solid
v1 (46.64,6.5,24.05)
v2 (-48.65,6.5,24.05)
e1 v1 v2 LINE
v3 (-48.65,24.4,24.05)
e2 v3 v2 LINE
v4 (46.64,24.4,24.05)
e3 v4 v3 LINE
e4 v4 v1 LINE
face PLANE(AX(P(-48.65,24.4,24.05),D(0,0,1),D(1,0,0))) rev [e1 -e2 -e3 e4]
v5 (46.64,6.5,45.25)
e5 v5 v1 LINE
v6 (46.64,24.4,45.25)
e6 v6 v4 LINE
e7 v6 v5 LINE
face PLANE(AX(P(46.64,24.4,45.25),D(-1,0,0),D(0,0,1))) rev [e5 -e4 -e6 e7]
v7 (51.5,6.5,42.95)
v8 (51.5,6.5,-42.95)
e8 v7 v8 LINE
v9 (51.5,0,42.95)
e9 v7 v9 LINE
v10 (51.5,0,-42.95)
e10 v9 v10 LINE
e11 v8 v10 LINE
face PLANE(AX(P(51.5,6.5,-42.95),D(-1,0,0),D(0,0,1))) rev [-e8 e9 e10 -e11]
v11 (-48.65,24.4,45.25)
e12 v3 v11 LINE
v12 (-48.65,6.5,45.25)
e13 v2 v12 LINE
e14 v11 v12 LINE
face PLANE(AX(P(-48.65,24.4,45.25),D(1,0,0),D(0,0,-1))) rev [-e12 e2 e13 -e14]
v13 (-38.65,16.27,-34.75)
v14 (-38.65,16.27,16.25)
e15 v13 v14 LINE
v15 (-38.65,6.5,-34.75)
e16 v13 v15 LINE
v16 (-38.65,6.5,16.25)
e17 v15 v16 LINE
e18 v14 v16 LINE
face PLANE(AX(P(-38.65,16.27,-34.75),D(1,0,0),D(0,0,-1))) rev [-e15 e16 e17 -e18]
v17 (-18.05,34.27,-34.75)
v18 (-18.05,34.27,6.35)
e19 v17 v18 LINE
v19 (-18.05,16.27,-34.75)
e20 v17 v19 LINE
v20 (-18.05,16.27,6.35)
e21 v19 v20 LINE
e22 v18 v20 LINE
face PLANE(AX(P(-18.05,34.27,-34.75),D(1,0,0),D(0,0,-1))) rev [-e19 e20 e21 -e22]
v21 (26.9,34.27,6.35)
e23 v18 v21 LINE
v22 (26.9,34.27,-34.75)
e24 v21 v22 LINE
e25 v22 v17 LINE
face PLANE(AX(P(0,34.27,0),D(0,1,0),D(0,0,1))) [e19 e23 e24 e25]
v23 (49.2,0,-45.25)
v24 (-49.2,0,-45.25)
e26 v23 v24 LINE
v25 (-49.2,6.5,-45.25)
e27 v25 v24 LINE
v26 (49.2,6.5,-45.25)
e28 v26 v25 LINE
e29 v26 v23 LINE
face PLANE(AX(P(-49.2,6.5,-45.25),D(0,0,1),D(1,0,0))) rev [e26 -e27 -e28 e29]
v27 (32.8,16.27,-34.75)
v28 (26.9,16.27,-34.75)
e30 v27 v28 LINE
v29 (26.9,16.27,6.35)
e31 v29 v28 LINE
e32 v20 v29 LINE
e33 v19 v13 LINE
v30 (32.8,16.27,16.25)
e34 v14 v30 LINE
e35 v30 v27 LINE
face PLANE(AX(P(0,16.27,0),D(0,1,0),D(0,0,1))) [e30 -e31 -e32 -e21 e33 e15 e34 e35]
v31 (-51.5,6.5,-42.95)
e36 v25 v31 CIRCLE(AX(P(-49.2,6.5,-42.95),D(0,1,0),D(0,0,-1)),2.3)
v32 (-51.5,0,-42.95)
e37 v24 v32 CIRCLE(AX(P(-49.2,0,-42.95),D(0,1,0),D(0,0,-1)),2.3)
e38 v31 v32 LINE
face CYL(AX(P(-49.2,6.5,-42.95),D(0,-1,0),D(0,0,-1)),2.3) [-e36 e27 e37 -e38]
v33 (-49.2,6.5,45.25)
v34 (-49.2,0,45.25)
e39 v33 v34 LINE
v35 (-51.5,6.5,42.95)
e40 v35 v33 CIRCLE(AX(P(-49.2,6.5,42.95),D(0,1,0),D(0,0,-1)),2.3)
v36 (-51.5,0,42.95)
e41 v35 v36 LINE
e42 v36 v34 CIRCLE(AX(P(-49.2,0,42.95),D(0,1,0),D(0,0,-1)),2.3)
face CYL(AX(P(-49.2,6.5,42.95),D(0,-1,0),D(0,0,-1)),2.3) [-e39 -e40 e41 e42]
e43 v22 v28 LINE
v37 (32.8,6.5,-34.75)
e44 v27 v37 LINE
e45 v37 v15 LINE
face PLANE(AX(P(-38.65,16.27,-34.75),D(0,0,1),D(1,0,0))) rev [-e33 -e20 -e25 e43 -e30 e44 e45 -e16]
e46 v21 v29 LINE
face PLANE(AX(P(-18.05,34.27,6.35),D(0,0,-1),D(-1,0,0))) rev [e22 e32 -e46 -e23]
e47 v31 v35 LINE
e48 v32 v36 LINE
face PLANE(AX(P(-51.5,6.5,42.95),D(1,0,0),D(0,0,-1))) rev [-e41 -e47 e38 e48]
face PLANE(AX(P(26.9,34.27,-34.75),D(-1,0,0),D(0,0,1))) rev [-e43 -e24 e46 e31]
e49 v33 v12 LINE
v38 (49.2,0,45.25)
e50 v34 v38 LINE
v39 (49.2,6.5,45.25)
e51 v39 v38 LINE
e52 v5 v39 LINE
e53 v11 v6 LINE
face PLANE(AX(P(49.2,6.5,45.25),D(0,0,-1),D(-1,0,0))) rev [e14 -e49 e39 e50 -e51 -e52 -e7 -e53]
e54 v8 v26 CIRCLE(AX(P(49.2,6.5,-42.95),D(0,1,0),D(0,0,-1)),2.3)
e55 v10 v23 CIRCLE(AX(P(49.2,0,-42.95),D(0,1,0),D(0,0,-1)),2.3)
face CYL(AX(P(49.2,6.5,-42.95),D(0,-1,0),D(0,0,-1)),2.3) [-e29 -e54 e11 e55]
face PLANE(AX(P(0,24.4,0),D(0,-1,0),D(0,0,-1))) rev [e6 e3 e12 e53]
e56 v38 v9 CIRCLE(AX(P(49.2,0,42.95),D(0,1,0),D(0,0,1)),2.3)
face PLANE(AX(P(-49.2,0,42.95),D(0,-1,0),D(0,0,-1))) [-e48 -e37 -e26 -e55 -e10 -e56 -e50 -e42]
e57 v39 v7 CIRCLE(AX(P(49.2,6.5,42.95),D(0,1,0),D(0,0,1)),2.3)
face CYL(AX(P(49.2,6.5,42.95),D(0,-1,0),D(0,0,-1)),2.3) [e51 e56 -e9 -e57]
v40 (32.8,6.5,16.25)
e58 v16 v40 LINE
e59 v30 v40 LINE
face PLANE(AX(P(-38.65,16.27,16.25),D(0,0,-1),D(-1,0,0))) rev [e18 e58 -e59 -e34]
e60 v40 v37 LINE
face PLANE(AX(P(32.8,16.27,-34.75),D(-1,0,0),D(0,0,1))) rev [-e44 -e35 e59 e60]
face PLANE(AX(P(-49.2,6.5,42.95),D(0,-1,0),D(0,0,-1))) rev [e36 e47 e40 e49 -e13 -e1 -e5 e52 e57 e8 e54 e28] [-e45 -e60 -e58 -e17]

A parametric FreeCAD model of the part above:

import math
import FreeCAD as App
import Part
import Sketcher

doc = App.newDocument("Part")
body = doc.addObject("PartDesign::Body", "Body")

sketch1 = body.newObject("Sketcher::SketchObject", "Sketch")
sketch1.AttachmentSupport = (doc.getObject("XZ_Plane"), [""])
sketch1.MapMode = "FlatFace"
sketch1.addGeometry(Part.LineSegment(App.Vector(-51.5, -43, 0), App.Vector(-51.5, 43, 0)), False)
sketch1.addGeometry(Part.ArcOfCircle(Part.Circle(App.Vector(-49.2, 43, 0), App.Vector(0, 0, 1), 2.3), math.radians(90), math.radians(180)), False)
sketch1.addGeometry(Part.LineSegment(App.Vector(-49.2, 45.2, 0), App.Vector(49.2, 45.2, 0)), False)
sketch1.addGeometry(Part.ArcOfCircle(Part.Circle(App.Vector(49.2, 43, 0), App.Vector(0, 0, 1), 2.3), math.radians(0), math.radians(90)), False)
sketch1.addGeometry(Part.LineSegment(App.Vector(51.5, 43, 0), App.Vector(51.5, -43, 0)), False)
sketch1.addGeometry(Part.ArcOfCircle(Part.Circle(App.Vector(49.2, -43, 0), App.Vector(0, 0, 1), 2.3), math.radians(-90), math.radians(0)), False)
sketch1.addGeometry(Part.LineSegment(App.Vector(49.2, -45.2, 0), App.Vector(-49.2, -45.2, 0)), False)
sketch1.addGeometry(Part.ArcOfCircle(Part.Circle(App.Vector(-49.2, -43, 0), App.Vector(0, 0, 1), 2.3), math.radians(180), math.radians(270)), False)
sketch1.addConstraint(Sketcher.Constraint("Tangent", 0, 2, 1, 2))
sketch1.addConstraint(Sketcher.Constraint("Tangent", 1, 1, 2, 1))
sketch1.addConstraint(Sketcher.Constraint("Tangent", 2, 2, 3, 2))
sketch1.addConstraint(Sketcher.Constraint("Tangent", 3, 1, 4, 1))
sketch1.addConstraint(Sketcher.Constraint("Tangent", 4, 2, 5, 2))
sketch1.addConstraint(Sketcher.Constraint("Tangent", 5, 1, 6, 1))
sketch1.addConstraint(Sketcher.Constraint("Tangent", 6, 2, 7, 2))
sketch1.addConstraint(Sketcher.Constraint("Tangent", 7, 1, 0, 1))
sketch1.addConstraint(Sketcher.Constraint("Vertical", 0))
sketch1.addConstraint(Sketcher.Constraint("Horizontal", 2))
sketch1.addConstraint(Sketcher.Constraint("Vertical", 4))
sketch1.addConstraint(Sketcher.Constraint("Horizontal", 6))
sketch1.addConstraint(Sketcher.Constraint("Equal", 1, 3))
sketch1.addConstraint(Sketcher.Constraint("Equal", 3, 5))
sketch1.addConstraint(Sketcher.Constraint("Equal", 5, 7))
sketch1.addConstraint(Sketcher.Constraint("Symmetric", 1, 3, 5, 3, -1, 1))
sketch1.addConstraint(Sketcher.Constraint("Radius", 1, 2.3))
sketch1.addConstraint(Sketcher.Constraint("DistanceX", 2, 1, 2, 2, 98.4))
sketch1.addConstraint(Sketcher.Constraint("DistanceY", 0, 1, 0, 2, 85.9))
pad1 = body.newObject("PartDesign::Pad", "Pad")
pad1.Profile = sketch1
pad1.Length = 6.5
pad1.Reversed = True

sketch2 = body.newObject("Sketcher::SketchObject", "Sketch001")
sketch2.AttachmentSupport = (doc.getObject("XZ_Plane"), [""])
sketch2.MapMode = "FlatFace"
sketch2.AttachmentOffset = App.Placement(App.Vector(0, 0, -6.5), App.Rotation())
sketch2.addGeometry(Part.LineSegment(App.Vector(-49, 24, 0), App.Vector(-49, 45, 0)), False)
sketch2.addGeometry(Part.LineSegment(App.Vector(-49, 45, 0), App.Vector(47, 45, 0)), False)
sketch2.addGeometry(Part.LineSegment(App.Vector(47, 45, 0), App.Vector(47, 24, 0)), False)
sketch2.addGeometry(Part.LineSegment(App.Vector(47, 24, 0), App.Vector(-49, 24, 0)), False)
sketch2.addConstraint(Sketcher.Constraint("Coincident", 0, 2, 1, 1))
sketch2.addConstraint(Sketcher.Constraint("Coincident", 1, 2, 2, 1))
sketch2.addConstraint(Sketcher.Constraint("Coincident", 2, 2, 3, 1))
sketch2.addConstraint(Sketcher.Constraint("Coincident", 3, 2, 0, 1))
sketch2.addConstraint(Sketcher.Constraint("Vertical", 0))
sketch2.addConstraint(Sketcher.Constraint("Horizontal", 1))
sketch2.addConstraint(Sketcher.Constraint("Vertical", 2))
sketch2.addConstraint(Sketcher.Constraint("Horizontal", 3))
sketch2.addConstraint(Sketcher.Constraint("DistanceY", 0, 1, 0, 2, 21.2))
sketch2.addConstraint(Sketcher.Constraint("DistanceX", 1, 1, 1, 2, 95.29))
sketch2.addConstraint(Sketcher.Constraint("DistanceX", 0, 2, -1, 1, 48.65))
sketch2.addConstraint(Sketcher.Constraint("DistanceY", -1, 1, 0, 2, 45.25))
pad2 = body.newObject("PartDesign::Pad", "Pad001")
pad2.Profile = sketch2
pad2.Length = 17.9
pad2.Reversed = True

sketch3 = body.newObject("Sketcher::SketchObject", "Sketch002")
sketch3.AttachmentSupport = (doc.getObject("XZ_Plane"), [""])
sketch3.MapMode = "FlatFace"
sketch3.AttachmentOffset = App.Placement(App.Vector(0, 0, -6.5), App.Rotation())
sketch3.addGeometry(Part.LineSegment(App.Vector(-39, -35, 0), App.Vector(-39, 16, 0)), False)
sketch3.addGeometry(Part.LineSegment(App.Vector(-39, 16, 0), App.Vector(33, 16, 0)), False)
sketch3.addGeometry(Part.LineSegment(App.Vector(33, 16, 0), App.Vector(33, -35, 0)), False)
sketch3.addGeometry(Part.LineSegment(App.Vector(33, -35, 0), App.Vector(-39, -35, 0)), False)
sketch3.addConstraint(Sketcher.Constraint("Coincident", 0, 2, 1, 1))
sketch3.addConstraint(Sketcher.Constraint("Coincident", 1, 2, 2, 1))
sketch3.addConstraint(Sketcher.Constraint("Coincident", 2, 2, 3, 1))
sketch3.addConstraint(Sketcher.Constraint("Coincident", 3, 2, 0, 1))
sketch3.addConstraint(Sketcher.Constraint("Vertical", 0))
sketch3.addConstraint(Sketcher.Constraint("Horizontal", 1))
sketch3.addConstraint(Sketcher.Constraint("Vertical", 2))
sketch3.addConstraint(Sketcher.Constraint("Horizontal", 3))
sketch3.addConstraint(Sketcher.Constraint("DistanceY", 0, 1, 0, 2, 51.0))
sketch3.addConstraint(Sketcher.Constraint("DistanceX", 1, 1, 1, 2, 71.45))
sketch3.addConstraint(Sketcher.Constraint("DistanceX", -1, 1, 1, 2, 32.8))
sketch3.addConstraint(Sketcher.Constraint("DistanceY", -1, 1, 0, 2, 16.25))
pad3 = body.newObject("PartDesign::Pad", "Pad002")
pad3.Profile = sketch3
pad3.Length = 9.77
pad3.Reversed = True

sketch4 = body.newObject("Sketcher::SketchObject", "Sketch003")
sketch4.AttachmentSupport = (doc.getObject("XZ_Plane"), [""])
sketch4.MapMode = "FlatFace"
sketch4.AttachmentOffset = App.Placement(App.Vector(0, 0, -16.27), App.Rotation())
sketch4.addGeometry(Part.LineSegment(App.Vector(-18, -35, 0), App.Vector(-18, 6, 0)), False)
sketch4.addGeometry(Part.LineSegment(App.Vector(-18, 6, 0), App.Vector(27, 6, 0)), False)
sketch4.addGeometry(Part.LineSegment(App.Vector(27, 6, 0), App.Vector(27, -35, 0)), False)
sketch4.addGeometry(Part.LineSegment(App.Vector(27, -35, 0), App.Vector(-18, -35, 0)), False)
sketch4.addConstraint(Sketcher.Constraint("Coincident", 0, 2, 1, 1))
sketch4.addConstraint(Sketcher.Constraint("Coincident", 1, 2, 2, 1))
sketch4.addConstraint(Sketcher.Constraint("Coincident", 2, 2, 3, 1))
sketch4.addConstraint(Sketcher.Constraint("Coincident", 3, 2, 0, 1))
sketch4.addConstraint(Sketcher.Constraint("Vertical", 0))
sketch4.addConstraint(Sketcher.Constraint("Horizontal", 1))
sketch4.addConstraint(Sketcher.Constraint("Vertical", 2))
sketch4.addConstraint(Sketcher.Constraint("Horizontal", 3))
sketch4.addConstraint(Sketcher.Constraint("DistanceY", 0, 1, 0, 2, 41.1))
sketch4.addConstraint(Sketcher.Constraint("DistanceX", 1, 1, 1, 2, 44.95))
sketch4.addConstraint(Sketcher.Constraint("DistanceX", -1, 1, 1, 2, 26.9))
sketch4.addConstraint(Sketcher.Constraint("DistanceY", -1, 1, 0, 2, 6.35))
pad4 = body.newObject("PartDesign::Pad", "Pad003")
pad4.Profile = sketch4
pad4.Length = 18
pad4.Reversed = True

doc.recompute()
